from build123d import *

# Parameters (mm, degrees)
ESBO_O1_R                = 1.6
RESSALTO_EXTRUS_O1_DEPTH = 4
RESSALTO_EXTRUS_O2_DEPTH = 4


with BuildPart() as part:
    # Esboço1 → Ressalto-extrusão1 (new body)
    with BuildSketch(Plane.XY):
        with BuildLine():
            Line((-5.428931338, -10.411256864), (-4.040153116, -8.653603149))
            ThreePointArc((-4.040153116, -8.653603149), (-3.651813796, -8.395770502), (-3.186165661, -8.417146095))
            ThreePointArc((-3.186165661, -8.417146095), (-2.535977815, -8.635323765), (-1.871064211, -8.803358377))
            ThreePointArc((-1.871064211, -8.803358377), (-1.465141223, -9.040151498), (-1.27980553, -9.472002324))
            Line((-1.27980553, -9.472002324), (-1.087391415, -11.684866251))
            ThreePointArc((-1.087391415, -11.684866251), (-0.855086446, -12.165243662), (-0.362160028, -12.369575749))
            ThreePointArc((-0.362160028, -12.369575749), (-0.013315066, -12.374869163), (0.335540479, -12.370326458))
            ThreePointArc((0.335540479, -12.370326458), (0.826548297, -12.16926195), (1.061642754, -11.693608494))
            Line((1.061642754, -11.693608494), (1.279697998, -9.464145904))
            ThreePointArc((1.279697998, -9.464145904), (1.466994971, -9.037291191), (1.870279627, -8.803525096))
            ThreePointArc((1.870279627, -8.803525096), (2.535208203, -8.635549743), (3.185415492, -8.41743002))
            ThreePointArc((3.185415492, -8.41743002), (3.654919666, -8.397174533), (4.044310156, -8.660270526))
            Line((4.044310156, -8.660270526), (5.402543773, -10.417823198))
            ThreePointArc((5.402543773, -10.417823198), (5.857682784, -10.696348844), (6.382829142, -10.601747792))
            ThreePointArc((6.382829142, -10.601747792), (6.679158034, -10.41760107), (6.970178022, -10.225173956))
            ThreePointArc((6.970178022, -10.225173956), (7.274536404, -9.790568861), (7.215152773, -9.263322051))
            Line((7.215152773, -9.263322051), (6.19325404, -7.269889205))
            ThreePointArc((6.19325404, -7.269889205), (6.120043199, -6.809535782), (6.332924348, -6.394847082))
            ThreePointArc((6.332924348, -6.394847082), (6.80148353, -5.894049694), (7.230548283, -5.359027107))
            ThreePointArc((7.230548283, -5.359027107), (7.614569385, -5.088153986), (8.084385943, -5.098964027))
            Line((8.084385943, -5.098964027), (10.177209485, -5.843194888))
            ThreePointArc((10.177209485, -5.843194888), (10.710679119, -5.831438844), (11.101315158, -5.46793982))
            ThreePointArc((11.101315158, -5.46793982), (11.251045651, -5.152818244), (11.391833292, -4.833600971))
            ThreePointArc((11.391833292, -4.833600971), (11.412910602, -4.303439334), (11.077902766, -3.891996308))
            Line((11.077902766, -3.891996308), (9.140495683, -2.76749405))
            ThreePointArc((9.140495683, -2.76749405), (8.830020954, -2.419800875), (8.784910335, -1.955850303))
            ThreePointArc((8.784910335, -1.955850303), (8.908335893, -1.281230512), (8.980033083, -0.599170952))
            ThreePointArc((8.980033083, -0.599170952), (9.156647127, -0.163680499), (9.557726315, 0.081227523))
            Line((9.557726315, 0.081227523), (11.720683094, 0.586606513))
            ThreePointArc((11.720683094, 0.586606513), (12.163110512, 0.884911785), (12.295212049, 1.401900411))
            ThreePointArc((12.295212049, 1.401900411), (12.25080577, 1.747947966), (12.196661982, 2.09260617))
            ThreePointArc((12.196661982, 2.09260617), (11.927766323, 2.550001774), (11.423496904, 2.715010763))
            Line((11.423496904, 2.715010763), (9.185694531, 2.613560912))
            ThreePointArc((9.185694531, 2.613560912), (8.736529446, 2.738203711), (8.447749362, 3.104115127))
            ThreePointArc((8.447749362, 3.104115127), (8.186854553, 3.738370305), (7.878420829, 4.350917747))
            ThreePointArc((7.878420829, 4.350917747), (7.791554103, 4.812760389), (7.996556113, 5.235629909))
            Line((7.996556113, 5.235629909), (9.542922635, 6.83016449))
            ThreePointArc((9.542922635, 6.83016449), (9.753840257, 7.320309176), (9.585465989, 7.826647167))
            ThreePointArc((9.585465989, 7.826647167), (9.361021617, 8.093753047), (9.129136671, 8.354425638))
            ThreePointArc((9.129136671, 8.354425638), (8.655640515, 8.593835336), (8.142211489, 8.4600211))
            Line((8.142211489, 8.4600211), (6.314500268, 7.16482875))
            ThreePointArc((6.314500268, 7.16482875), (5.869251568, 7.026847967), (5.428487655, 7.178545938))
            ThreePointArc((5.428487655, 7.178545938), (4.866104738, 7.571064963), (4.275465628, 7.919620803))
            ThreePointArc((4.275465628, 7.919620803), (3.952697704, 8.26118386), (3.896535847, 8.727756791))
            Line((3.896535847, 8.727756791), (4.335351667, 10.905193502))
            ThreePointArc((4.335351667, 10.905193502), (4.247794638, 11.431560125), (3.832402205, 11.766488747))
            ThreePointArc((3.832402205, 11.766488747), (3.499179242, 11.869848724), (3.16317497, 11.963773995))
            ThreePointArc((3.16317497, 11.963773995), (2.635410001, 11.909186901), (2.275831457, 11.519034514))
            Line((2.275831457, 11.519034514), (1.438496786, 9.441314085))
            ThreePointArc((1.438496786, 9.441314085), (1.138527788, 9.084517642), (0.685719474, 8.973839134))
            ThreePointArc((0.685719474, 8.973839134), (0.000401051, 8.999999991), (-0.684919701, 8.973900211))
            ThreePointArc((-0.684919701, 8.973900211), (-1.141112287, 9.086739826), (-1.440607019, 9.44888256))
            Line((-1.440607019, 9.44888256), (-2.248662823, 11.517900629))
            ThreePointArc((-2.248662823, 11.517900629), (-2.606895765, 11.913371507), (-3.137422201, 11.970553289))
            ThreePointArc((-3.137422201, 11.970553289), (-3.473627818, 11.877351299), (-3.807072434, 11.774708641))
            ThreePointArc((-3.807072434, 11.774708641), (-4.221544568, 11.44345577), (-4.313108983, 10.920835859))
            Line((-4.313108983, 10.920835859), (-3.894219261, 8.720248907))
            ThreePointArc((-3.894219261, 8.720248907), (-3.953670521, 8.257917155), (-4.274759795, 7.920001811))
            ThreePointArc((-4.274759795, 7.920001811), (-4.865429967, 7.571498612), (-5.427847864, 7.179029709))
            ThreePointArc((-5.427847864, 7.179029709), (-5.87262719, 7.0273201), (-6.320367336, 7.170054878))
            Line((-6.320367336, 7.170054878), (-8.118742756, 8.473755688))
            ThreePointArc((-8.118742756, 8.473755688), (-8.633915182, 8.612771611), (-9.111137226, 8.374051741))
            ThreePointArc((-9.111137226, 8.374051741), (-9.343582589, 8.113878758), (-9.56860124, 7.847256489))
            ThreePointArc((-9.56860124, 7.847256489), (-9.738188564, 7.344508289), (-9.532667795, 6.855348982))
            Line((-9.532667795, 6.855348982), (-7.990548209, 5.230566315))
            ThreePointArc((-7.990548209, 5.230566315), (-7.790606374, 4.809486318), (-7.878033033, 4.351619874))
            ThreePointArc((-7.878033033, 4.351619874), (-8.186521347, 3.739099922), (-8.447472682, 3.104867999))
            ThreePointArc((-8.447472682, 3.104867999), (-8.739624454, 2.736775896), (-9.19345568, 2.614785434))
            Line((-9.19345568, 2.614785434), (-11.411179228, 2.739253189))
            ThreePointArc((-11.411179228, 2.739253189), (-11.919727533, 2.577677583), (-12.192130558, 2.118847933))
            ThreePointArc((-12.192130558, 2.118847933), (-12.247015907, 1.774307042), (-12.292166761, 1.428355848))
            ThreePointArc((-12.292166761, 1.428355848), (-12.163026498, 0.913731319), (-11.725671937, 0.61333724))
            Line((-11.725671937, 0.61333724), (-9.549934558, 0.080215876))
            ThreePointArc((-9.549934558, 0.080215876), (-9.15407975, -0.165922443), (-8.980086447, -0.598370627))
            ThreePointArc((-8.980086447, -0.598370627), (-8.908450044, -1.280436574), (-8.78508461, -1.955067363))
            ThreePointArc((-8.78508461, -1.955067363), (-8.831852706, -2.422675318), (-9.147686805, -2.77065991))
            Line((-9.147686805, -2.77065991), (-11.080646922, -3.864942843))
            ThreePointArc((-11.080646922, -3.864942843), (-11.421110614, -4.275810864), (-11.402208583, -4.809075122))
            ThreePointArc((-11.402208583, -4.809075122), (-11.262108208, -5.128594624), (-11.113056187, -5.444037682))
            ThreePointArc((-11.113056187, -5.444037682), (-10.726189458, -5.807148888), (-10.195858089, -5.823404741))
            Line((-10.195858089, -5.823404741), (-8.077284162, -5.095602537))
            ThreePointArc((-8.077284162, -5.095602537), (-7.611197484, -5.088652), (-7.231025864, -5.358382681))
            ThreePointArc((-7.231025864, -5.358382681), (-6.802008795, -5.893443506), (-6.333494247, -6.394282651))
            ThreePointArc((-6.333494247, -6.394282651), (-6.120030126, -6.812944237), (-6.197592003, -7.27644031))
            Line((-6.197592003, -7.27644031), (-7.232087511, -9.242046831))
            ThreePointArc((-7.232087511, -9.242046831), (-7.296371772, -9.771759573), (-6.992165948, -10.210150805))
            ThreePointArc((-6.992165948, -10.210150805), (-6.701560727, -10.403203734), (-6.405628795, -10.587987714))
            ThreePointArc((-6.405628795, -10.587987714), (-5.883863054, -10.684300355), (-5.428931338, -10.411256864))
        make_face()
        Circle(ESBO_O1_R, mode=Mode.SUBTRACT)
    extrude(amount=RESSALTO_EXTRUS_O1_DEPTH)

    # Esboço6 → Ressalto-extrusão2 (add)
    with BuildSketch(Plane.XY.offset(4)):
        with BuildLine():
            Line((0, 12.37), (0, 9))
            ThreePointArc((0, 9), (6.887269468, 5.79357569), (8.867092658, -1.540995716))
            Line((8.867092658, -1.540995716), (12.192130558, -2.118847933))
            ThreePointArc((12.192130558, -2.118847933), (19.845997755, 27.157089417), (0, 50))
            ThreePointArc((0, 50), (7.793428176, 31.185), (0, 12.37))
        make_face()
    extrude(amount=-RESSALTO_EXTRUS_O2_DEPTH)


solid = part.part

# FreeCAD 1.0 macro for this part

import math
import FreeCAD as App
import Part
import Sketcher

V = App.Vector

doc = App.newDocument("Part")
body = doc.addObject("PartDesign::Body", "Body")

# Sketch on XY plane
sketch1 = doc.addObject("Sketcher::SketchObject", "Sketch")
body.addObject(sketch1)
sketch1.AttachmentSupport = (doc.XY_Plane, [""])
sketch1.MapMode = "FlatFace"
sketch1.addGeometry([
    Part.LineSegment(V(-5.4, -10.4, 0), V(-4, -8.7, 0)),  # 0
    Part.ArcOfCircle(Part.Circle(V(-3.5, -9.1, 0), V(0, 0, 1), 0.7), math.radians(69), math.radians(142)),  # 1
    Part.ArcOfCircle(Part.Circle(V(0, 0, 0), V(0, 0, 1), 9), math.radians(-110.73), math.radians(-102)),  # 2
    Part.ArcOfCircle(Part.Circle(V(-2, -9.5, 0), V(0, 0, 1), 0.8), math.radians(5), math.radians(78)),  # 3
    Part.LineSegment(V(-1.3, -9.5, 0), V(-1.1, -11.7, 0)),  # 4
    Part.ArcOfCircle(Part.Circle(V(-0.3, -11.6, 0), V(0, 0, 1), 0.8), math.radians(-175), math.radians(-92)),  # 5
    Part.ArcOfCircle(Part.Circle(V(0, 0, 0), V(0, 0, 1), 12.4), math.radians(-91.68), math.radians(-88.45)),  # 6
    Part.ArcOfCircle(Part.Circle(V(0.3, -11.6, 0), V(0, 0, 1), 0.8), math.radians(-88), math.radians(-6)),  # 7
    Part.LineSegment(V(1.1, -11.7, 0), V(1.3, -9.5, 0)),  # 8
    Part.ArcOfCircle(Part.Circle(V(2, -9.5, 0), V(0, 0, 1), 0.8), math.radians(102), math.radians(174)),  # 9
    Part.ArcOfCircle(Part.Circle(V(0, 0, 0), V(0, 0, 1), 9), math.radians(-78.01), math.radians(-69.27)),  # 10
    Part.ArcOfCircle(Part.Circle(V(3.5, -9.1, 0), V(0, 0, 1), 0.7), math.radians(38), math.radians(111)),  # 11
    Part.LineSegment(V(4, -8.7, 0), V(5.4, -10.4, 0)),  # 12
    Part.ArcOfCircle(Part.Circle(V(6, -10, 0), V(0, 0, 1), 0.7), math.radians(-142), math.radians(-59)),  # 13
    Part.ArcOfCircle(Part.Circle(V(0, 0, 0), V(0, 0, 1), 12.4), math.radians(-58.95), math.radians(-55.72)),  # 14
    Part.ArcOfCircle(Part.Circle(V(6.5, -9.6, 0), V(0, 0, 1), 0.8), math.radians(-56), math.radians(27)),  # 15
    Part.LineSegment(V(7.2, -9.3, 0), V(6.2, -7.3, 0)),  # 16
    Part.ArcOfCircle(Part.Circle(V(6.9, -6.9, 0), V(0, 0, 1), 0.8), math.radians(135), math.radians(207)),  # 17
    Part.ArcOfCircle(Part.Circle(V(0, 0, 0), V(0, 0, 1), 9), math.radians(-45.28), math.radians(-36.54)),  # 18
    Part.ArcOfCircle(Part.Circle(V(7.8, -5.8, 0), V(0, 0, 1), 0.7), math.radians(70), math.radians(143)),  # 19
    Part.LineSegment(V(8.1, -5.1, 0), V(10.2, -5.8, 0)),  # 20
    Part.ArcOfCircle(Part.Circle(V(10.4, -5.1, 0), V(0, 0, 1), 0.8), math.radians(-110), math.radians(-26)),  # 21
    Part.ArcOfCircle(Part.Circle(V(0, 0, 0), V(0, 0, 1), 12.4), math.radians(-26.22), math.radians(-22.99)),  # 22
    Part.ArcOfCircle(Part.Circle(V(10.7, -4.5, 0), V(0, 0, 1), 0.7), math.radians(-23), math.radians(60)),  # 23
    Part.LineSegment(V(11.1, -3.9, 0), V(9.1, -2.8, 0)),  # 24
    Part.ArcOfCircle(Part.Circle(V(9.5, -2.1, 0), V(0, 0, 1), 0.8), math.radians(167), math.radians(240)),  # 25
    Part.ArcOfCircle(Part.Circle(V(0, 0, 0), V(0, 0, 1), 9), math.radians(-12.55), math.radians(-3.82)),  # 26
    Part.ArcOfCircle(Part.Circle(V(9.7, -0.6, 0), V(0, 0, 1), 0.7), math.radians(103), math.radians(176)),  # 27
    Part.LineSegment(V(9.6, 0.1, 0), V(11.7, 0.6, 0)),  # 28
    Part.ArcOfCircle(Part.Circle(V(11.6, 1.3, 0), V(0, 0, 1), 0.7), math.radians(-77), math.radians(7)),  # 29
    Part.ArcOfCircle(Part.Circle(V(0, 0, 0), V(0, 0, 1), 12.4), math.radians(6.5), math.radians(9.74)),  # 30
    Part.ArcOfCircle(Part.Circle(V(11.5, 2, 0), V(0, 0, 1), 0.7), math.radians(10), math.radians(93)),  # 31
    Part.LineSegment(V(11.4, 2.7, 0), V(9.2, 2.6, 0)),  # 32
    Part.ArcOfCircle(Part.Circle(V(9.2, 3.4, 0), V(0, 0, 1), 0.7), math.radians(-160), math.radians(-87)),  # 33
    Part.ArcOfCircle(Part.Circle(V(0, 0, 0), V(0, 0, 1), 9), math.radians(20.18), math.radians(28.91)),  # 34
    Part.ArcOfCircle(Part.Circle(V(8.5, 4.7, 0), V(0, 0, 1), 0.8), math.radians(136), math.radians(209)),  # 35
    Part.LineSegment(V(8, 5.2, 0), V(9.5, 6.8, 0)),  # 36
    Part.ArcOfCircle(Part.Circle(V(9, 7.4, 0), V(0, 0, 1), 0.8), math.radians(-44), math.radians(39)),  # 37
    Part.ArcOfCircle(Part.Circle(V(0, 0, 0), V(0, 0, 1), 12.4), math.radians(39.23), math.radians(42.46)),  # 38
    Part.ArcOfCircle(Part.Circle(V(8.6, 7.8, 0), V(0, 0, 1), 0.8), math.radians(42), math.radians(125)),  # 39
    Part.LineSegment(V(8.1, 8.5, 0), V(6.3, 7.2, 0)),  # 40
    Part.ArcOfCircle(Part.Circle(V(5.9, 7.8, 0), V(0, 0, 1), 0.8), math.radians(-127), math.radians(-55)),  # 41
    Part.ArcOfCircle(Part.Circle(V(0, 0, 0), V(0, 0, 1), 9), math.radians(52.9), math.radians(61.64)),  # 42
    Part.ArcOfCircle(Part.Circle(V(4.6, 8.6, 0), V(0, 0, 1), 0.7), math.radians(169), math.radians(242)),  # 43
    Part.LineSegment(V(3.9, 8.7, 0), V(4.3, 10.9, 0)),  # 44
    Part.ArcOfCircle(Part.Circle(V(3.6, 11.1, 0), V(0, 0, 1), 0.8), math.radians(-11), math.radians(72)),  # 45
    Part.ArcOfCircle(Part.Circle(V(0, 0, 0), V(0, 0, 1), 12.4), math.radians(71.96), math.radians(75.19)),  # 46
    Part.ArcOfCircle(Part.Circle(V(3, 11.2, 0), V(0, 0, 1), 0.8), math.radians(75), math.radians(158)),  # 47
    Part.LineSegment(V(2.3, 11.5, 0), V(1.4, 9.4, 0)),  # 48
    Part.ArcOfCircle(Part.Circle(V(0.7, 9.7, 0), V(0, 0, 1), 0.7), math.radians(-94), math.radians(-22)),  # 49
    Part.ArcOfCircle(Part.Circle(V(0, 0, 0), V(0, 0, 1), 9), math.radians(85.63), math.radians(94.36)),  # 50
    Part.ArcOfCircle(Part.Circle(V(-0.7, 9.7, 0), V(0, 0, 1), 0.8), math.radians(-159), math.radians(-86)),  # 51
    Part.LineSegment(V(-1.4, 9.4, 0), V(-2.2, 11.5, 0)),  # 52
    Part.ArcOfCircle(Part.Circle(V(-2.9, 11.2, 0), V(0, 0, 1), 0.8), math.radians(21), math.radians(105)),  # 53
    Part.ArcOfCircle(Part.Circle(V(0, 0, 0), V(0, 0, 1), 12.4), math.radians(104.69), math.radians(107.92)),  # 54
    Part.ArcOfCircle(Part.Circle(V(-3.6, 11.1, 0), V(0, 0, 1), 0.8), math.radians(108), math.radians(191)),  # 55
    Part.LineSegment(V(-4.3, 10.9, 0), V(-3.9, 8.7, 0)),  # 56
    Part.ArcOfCircle(Part.Circle(V(-4.6, 8.6, 0), V(0, 0, 1), 0.8), math.radians(-62), math.radians(11)),  # 57
    Part.ArcOfCircle(Part.Circle(V(0, 0, 0), V(0, 0, 1), 9), math.radians(118.36), math.radians(127.09)),  # 58
    Part.ArcOfCircle(Part.Circle(V(-5.9, 7.8, 0), V(0, 0, 1), 0.8), math.radians(-126), math.radians(-53)),  # 59
    Part.LineSegment(V(-6.3, 7.2, 0), V(-8.1, 8.5, 0)),  # 60
    Part.ArcOfCircle(Part.Circle(V(-8.6, 7.9, 0), V(0, 0, 1), 0.8), math.radians(54), math.radians(137)),  # 61
    Part.ArcOfCircle(Part.Circle(V(0, 0, 0), V(0, 0, 1), 12.4), math.radians(137.41), math.radians(140.64)),  # 62
    Part.ArcOfCircle(Part.Circle(V(-9, 7.4, 0), V(0, 0, 1), 0.7), math.radians(141), math.radians(224)),  # 63
    Part.LineSegment(V(-9.5, 6.9, 0), V(-8, 5.2, 0)),  # 64
    Part.ArcOfCircle(Part.Circle(V(-8.5, 4.7, 0), V(0, 0, 1), 0.7), math.radians(-29), math.radians(44)),  # 65
    Part.ArcOfCircle(Part.Circle(V(0, 0, 0), V(0, 0, 1), 9), math.radians(151.08), math.radians(159.82)),  # 66
    Part.ArcOfCircle(Part.Circle(V(-9.2, 3.4, 0), V(0, 0, 1), 0.7), math.radians(-93), math.radians(-20)),  # 67
    Part.LineSegment(V(-9.2, 2.6, 0), V(-11.4, 2.7, 0)),  # 68
    Part.ArcOfCircle(Part.Circle(V(-11.5, 2, 0), V(0, 0, 1), 0.8), math.radians(87), math.radians(170)),  # 69
    Part.ArcOfCircle(Part.Circle(V(0, 0, 0), V(0, 0, 1), 12.4), math.radians(170.14), math.radians(173.37)),  # 70
    Part.ArcOfCircle(Part.Circle(V(-11.5, 1.3, 0), V(0, 0, 1), 0.8), math.radians(173), math.radians(256)),  # 71
    Part.LineSegment(V(-11.7, 0.6, 0), V(-9.5, 0.1, 0)),  # 72
    Part.ArcOfCircle(Part.Circle(V(-9.7, -0.6, 0), V(0, 0, 1), 0.8), math.radians(4), math.radians(76)),  # 73
    Part.ArcOfCircle(Part.Circle(V(0, 0, 0), V(0, 0, 1), 9), math.radians(-176.19), math.radians(-167.45)),  # 74
    Part.ArcOfCircle(Part.Circle(V(-9.5, -2.1, 0), V(0, 0, 1), 0.8), math.radians(-60), math.radians(13)),  # 75
    Part.LineSegment(V(-9.1, -2.8, 0), V(-11.1, -3.9, 0)),  # 76
    Part.ArcOfCircle(Part.Circle(V(-10.7, -4.5, 0), V(0, 0, 1), 0.7), math.radians(120), math.radians(203)),  # 77
    Part.ArcOfCircle(Part.Circle(V(0, 0, 0), V(0, 0, 1), 12.4), math.radians(-157.13), math.radians(-153.9)),  # 78
    Part.ArcOfCircle(Part.Circle(V(-10.4, -5.1, 0), V(0, 0, 1), 0.8), math.radians(-154), math.radians(-71)),  # 79
    Part.LineSegment(V(-10.2, -5.8, 0), V(-8.1, -5.1, 0)),  # 80
    Part.ArcOfCircle(Part.Circle(V(-7.8, -5.8, 0), V(0, 0, 1), 0.8), math.radians(37), math.radians(109)),  # 81
    Part.ArcOfCircle(Part.Circle(V(0, 0, 0), V(0, 0, 1), 9), math.radians(-143.46), math.radians(-134.73)),  # 82
    Part.ArcOfCircle(Part.Circle(V(-6.9, -6.9, 0), V(0, 0, 1), 0.8), math.radians(-28), math.radians(45)),  # 83
    Part.LineSegment(V(-6.2, -7.3, 0), V(-7.2, -9.2, 0)),  # 84
    Part.ArcOfCircle(Part.Circle(V(-6.6, -9.6, 0), V(0, 0, 1), 0.8), math.radians(152), math.radians(236)),  # 85
    Part.ArcOfCircle(Part.Circle(V(0, 0, 0), V(0, 0, 1), 12.4), math.radians(-124.4), math.radians(-121.17)),  # 86
    Part.ArcOfCircle(Part.Circle(V(-6, -9.9, 0), V(0, 0, 1), 0.8), math.radians(-121), math.radians(-38)),  # 87
    Part.Circle(V(0, 0, 0), V(0, 0, 1), 1.6),  # 88
], False)
sketch1.addConstraint([
    Sketcher.Constraint("Tangent", 0, 2, 1, 2),
    Sketcher.Constraint("Tangent", 1, 1, 2, 1),
    Sketcher.Constraint("Tangent", 2, 2, 3, 2),
    Sketcher.Constraint("Tangent", 3, 1, 4, 1),
    Sketcher.Constraint("Tangent", 4, 2, 5, 1),
    Sketcher.Constraint("Tangent", 5, 2, 6, 1),
    Sketcher.Constraint("Tangent", 6, 2, 7, 1),
    Sketcher.Constraint("Tangent", 7, 2, 8, 1),
    Sketcher.Constraint("Tangent", 8, 2, 9, 2),
    Sketcher.Constraint("Tangent", 9, 1, 10, 1),
    Sketcher.Constraint("Tangent", 10, 2, 11, 2),
    Sketcher.Constraint("Tangent", 11, 1, 12, 1),
    Sketcher.Constraint("Tangent", 12, 2, 13, 1),
    Sketcher.Constraint("Tangent", 13, 2, 14, 1),
    Sketcher.Constraint("Tangent", 14, 2, 15, 1),
    Sketcher.Constraint("Tangent", 15, 2, 16, 1),
    Sketcher.Constraint("Tangent", 16, 2, 17, 2),
    Sketcher.Constraint("Tangent", 17, 1, 18, 1),
    Sketcher.Constraint("Tangent", 18, 2, 19, 2),
    Sketcher.Constraint("Tangent", 19, 1, 20, 1),
    Sketcher.Constraint("Tangent", 20, 2, 21, 1),
    Sketcher.Constraint("Tangent", 21, 2, 22, 1),
    Sketcher.Constraint("Tangent", 22, 2, 23, 1),
    Sketcher.Constraint("Tangent", 23, 2, 24, 1),
    Sketcher.Constraint("Tangent", 24, 2, 25, 2),
    Sketcher.Constraint("Tangent", 25, 1, 26, 1),
    Sketcher.Constraint("Tangent", 26, 2, 27, 2),
    Sketcher.Constraint("Tangent", 27, 1, 28, 1),
    Sketcher.Constraint("Tangent", 28, 2, 29, 1),
    Sketcher.Constraint("Tangent", 29, 2, 30, 1),
    Sketcher.Constraint("Tangent", 30, 2, 31, 1),
    Sketcher.Constraint("Tangent", 31, 2, 32, 1),
    Sketcher.Constraint("Tangent", 32, 2, 33, 2),
    Sketcher.Constraint("Tangent", 33, 1, 34, 1),
    Sketcher.Constraint("Tangent", 34, 2, 35, 2),
    Sketcher.Constraint("Tangent", 35, 1, 36, 1),
    Sketcher.Constraint("Tangent", 36, 2, 37, 1),
    Sketcher.Constraint("Tangent", 37, 2, 38, 1),
    Sketcher.Constraint("Tangent", 38, 2, 39, 1),
    Sketcher.Constraint("Tangent", 39, 2, 40, 1),
    Sketcher.Constraint("Tangent", 40, 2, 41, 2),
    Sketcher.Constraint("Tangent", 41, 1, 42, 1),
    Sketcher.Constraint("Tangent", 42, 2, 43, 2),
    Sketcher.Constraint("Tangent", 43, 1, 44, 1),
    Sketcher.Constraint("Tangent", 44, 2, 45, 1),
    Sketcher.Constraint("Tangent", 45, 2, 46, 1),
    Sketcher.Constraint("Tangent", 46, 2, 47, 1),
    Sketcher.Constraint("Tangent", 47, 2, 48, 1),
    Sketcher.Constraint("Tangent", 48, 2, 49, 2),
    Sketcher.Constraint("Tangent", 49, 1, 50, 1),
    Sketcher.Constraint("Tangent", 50, 2, 51, 2),
    Sketcher.Constraint("Tangent", 51, 1, 52, 1),
    Sketcher.Constraint("Tangent", 52, 2, 53, 1),
    Sketcher.Constraint("Tangent", 53, 2, 54, 1),
    Sketcher.Constraint("Tangent", 54, 2, 55, 1),
    Sketcher.Constraint("Tangent", 55, 2, 56, 1),
    Sketcher.Constraint("Tangent", 56, 2, 57, 2),
    Sketcher.Constraint("Tangent", 57, 1, 58, 1),
    Sketcher.Constraint("Tangent", 58, 2, 59, 2),
    Sketcher.Constraint("Tangent", 59, 1, 60, 1),
    Sketcher.Constraint("Tangent", 60, 2, 61, 1),
    Sketcher.Constraint("Tangent", 61, 2, 62, 1),
    Sketcher.Constraint("Tangent", 62, 2, 63, 1),
    Sketcher.Constraint("Tangent", 63, 2, 64, 1),
    Sketcher.Constraint("Tangent", 64, 2, 65, 2),
    Sketcher.Constraint("Tangent", 65, 1, 66, 1),
    Sketcher.Constraint("Tangent", 66, 2, 67, 2),
    Sketcher.Constraint("Tangent", 67, 1, 68, 1),
    Sketcher.Constraint("Tangent", 68, 2, 69, 1),
    Sketcher.Constraint("Tangent", 69, 2, 70, 1),
    Sketcher.Constraint("Tangent", 70, 2, 71, 1),
    Sketcher.Constraint("Tangent", 71, 2, 72, 1),
    Sketcher.Constraint("Tangent", 72, 2, 73, 2),
    Sketcher.Constraint("Tangent", 73, 1, 74, 1),
    Sketcher.Constraint("Tangent", 74, 2, 75, 2),
    Sketcher.Constraint("Tangent", 75, 1, 76, 1),
    Sketcher.Constraint("Tangent", 76, 2, 77, 1),
    Sketcher.Constraint("Tangent", 77, 2, 78, 1),
    Sketcher.Constraint("Tangent", 78, 2, 79, 1),
    Sketcher.Constraint("Tangent", 79, 2, 80, 1),
    Sketcher.Constraint("Tangent", 80, 2, 81, 2),
    Sketcher.Constraint("Tangent", 81, 1, 82, 1),
    Sketcher.Constraint("Tangent", 82, 2, 83, 2),
    Sketcher.Constraint("Tangent", 83, 1, 84, 1),
    Sketcher.Constraint("Tangent", 84, 2, 85, 1),
    Sketcher.Constraint("Tangent", 85, 2, 86, 1),
    Sketcher.Constraint("Tangent", 86, 2, 87, 1),
    Sketcher.Constraint("Tangent", 87, 2, 0, 1),
    Sketcher.Constraint("Coincident", 2, 3, -1, 1),
    Sketcher.Constraint("Coincident", 6, 3, -1, 1),
    Sketcher.Constraint("Coincident", 10, 3, -1, 1),
    Sketcher.Constraint("Coincident", 14, 3, -1, 1),
    Sketcher.Constraint("Coincident", 18, 3, -1, 1),
    Sketcher.Constraint("Coincident", 22, 3, -1, 1),
    Sketcher.Constraint("Coincident", 26, 3, -1, 1),
    Sketcher.Constraint("Coincident", 30, 3, -1, 1),
    Sketcher.Constraint("Coincident", 34, 3, -1, 1),
    Sketcher.Constraint("Coincident", 38, 3, -1, 1),
    Sketcher.Constraint("Coincident", 42, 3, -1, 1),
    Sketcher.Constraint("Coincident", 46, 3, -1, 1),
    Sketcher.Constraint("Coincident", 50, 3, -1, 1),
    Sketcher.Constraint("Coincident", 54, 3, -1, 1),
    Sketcher.Constraint("Coincident", 58, 3, -1, 1),
    Sketcher.Constraint("Coincident", 62, 3, -1, 1),
    Sketcher.Constraint("Coincident", 66, 3, -1, 1),
    Sketcher.Constraint("Coincident", 70, 3, -1, 1),
    Sketcher.Constraint("Coincident", 74, 3, -1, 1),
    Sketcher.Constraint("Coincident", 78, 3, -1, 1),
    Sketcher.Constraint("Coincident", 82, 3, -1, 1),
    Sketcher.Constraint("Coincident", 86, 3, -1, 1),
    Sketcher.Constraint("Coincident", 88, 3, -1, 1),
    Sketcher.Constraint("Equal", 1, 3),
    Sketcher.Constraint("Equal", 3, 5),
    Sketcher.Constraint("Equal", 5, 7),
    Sketcher.Constraint("Equal", 7, 9),
    Sketcher.Constraint("Equal", 2, 10),
    Sketcher.Constraint("Equal", 9, 11),
    Sketcher.Constraint("Equal", 11, 13),
    Sketcher.Constraint("Equal", 6, 14),
    Sketcher.Constraint("Equal", 13, 15),
    Sketcher.Constraint("Equal", 15, 17),
    Sketcher.Constraint("Equal", 10, 18),
    Sketcher.Constraint("Equal", 17, 19),
    Sketcher.Constraint("Equal", 19, 21),
    Sketcher.Constraint("Equal", 14, 22),
    Sketcher.Constraint("Equal", 21, 23),
    Sketcher.Constraint("Equal", 23, 25),
    Sketcher.Constraint("Equal", 18, 26),
    Sketcher.Constraint("Equal", 25, 27),
    Sketcher.Constraint("Equal", 27, 29),
    Sketcher.Constraint("Equal", 14, 30),
    Sketcher.Constraint("Equal", 29, 31),
    Sketcher.Constraint("Equal", 31, 33),
    Sketcher.Constraint("Equal", 26, 34),
    Sketcher.Constraint("Equal", 33, 35),
    Sketcher.Constraint("Equal", 35, 37),
    Sketcher.Constraint("Equal", 30, 38),
    Sketcher.Constraint("Equal", 37, 39),
    Sketcher.Constraint("Equal", 39, 41),
    Sketcher.Constraint("Equal", 34, 42),
    Sketcher.Constraint("Equal", 41, 43),
    Sketcher.Constraint("Equal", 43, 45),
    Sketcher.Constraint("Equal", 38, 46),
    Sketcher.Constraint("Equal", 45, 47),
    Sketcher.Constraint("Equal", 47, 49),
    Sketcher.Constraint("Equal", 42, 50),
    Sketcher.Constraint("Equal", 49, 51),
    Sketcher.Constraint("Equal", 51, 53),
    Sketcher.Constraint("Equal", 46, 54),
    Sketcher.Constraint("Equal", 53, 55),
    Sketcher.Constraint("Equal", 55, 57),
    Sketcher.Constraint("Equal", 50, 58),
    Sketcher.Constraint("Equal", 57, 59),
    Sketcher.Constraint("Equal", 59, 61),
    Sketcher.Constraint("Equal", 54, 62),
    Sketcher.Constraint("Equal", 61, 63),
    Sketcher.Constraint("Equal", 63, 65),
    Sketcher.Constraint("Equal", 58, 66),
    Sketcher.Constraint("Equal", 65, 67),
    Sketcher.Constraint("Equal", 67, 69),
    Sketcher.Constraint("Equal", 62, 70),
    Sketcher.Constraint("Equal", 69, 71),
    Sketcher.Constraint("Equal", 71, 73),
    Sketcher.Constraint("Equal", 66, 74),
    Sketcher.Constraint("Equal", 73, 75),
    Sketcher.Constraint("Equal", 75, 77),
    Sketcher.Constraint("Equal", 70, 78),
    Sketcher.Constraint("Equal", 77, 79),
    Sketcher.Constraint("Equal", 79, 81),
    Sketcher.Constraint("Equal", 74, 82),
    Sketcher.Constraint("Equal", 81, 83),
    Sketcher.Constraint("Equal", 83, 85),
    Sketcher.Constraint("Equal", 78, 86),
    Sketcher.Constraint("Equal", 85, 87),
    Sketcher.Constraint("Equal", 0, 8),
    Sketcher.Constraint("Equal", 4, 12),
    Sketcher.Constraint("Equal", 8, 16),
    Sketcher.Constraint("Equal", 12, 20),
    Sketcher.Constraint("Equal", 16, 24),
    Sketcher.Constraint("Equal", 20, 28),
    Sketcher.Constraint("Equal", 24, 32),
    Sketcher.Constraint("Equal", 28, 36),
    Sketcher.Constraint("Equal", 32, 40),
    Sketcher.Constraint("Equal", 36, 44),
    Sketcher.Constraint("Equal", 40, 48),
    Sketcher.Constraint("Equal", 44, 52),
    Sketcher.Constraint("Equal", 48, 56),
    Sketcher.Constraint("Equal", 52, 60),
    Sketcher.Constraint("Equal", 56, 64),
    Sketcher.Constraint("Equal", 60, 68),
    Sketcher.Constraint("Equal", 64, 72),
    Sketcher.Constraint("Equal", 68, 76),
    Sketcher.Constraint("Equal", 72, 80),
    Sketcher.Constraint("Equal", 76, 84),
    Sketcher.Constraint("Radius", 2, 9.0),
    Sketcher.Constraint("Diameter", 88, 3.2),
    Sketcher.Constraint("Radius", 1, 0.75),
    Sketcher.Constraint("DistanceY", -1, 1, 57, 3, 8.580002),
    Sketcher.Constraint("Radius", 6, 12.374876),
    Sketcher.Constraint("Distance", 0, 2.240101),
    Sketcher.Constraint("DistanceX", -1, 1, 21, 3, 10.428501),
    Sketcher.Constraint("DistanceY", 27, 3, -1, 1, 0.649102),
    Sketcher.Constraint("DistanceY", -1, 1, 37, 3, 7.3523),
    Sketcher.Constraint("DistanceY", 22, 2, -1, 1, 4.833601),
    Sketcher.Constraint("DistanceY", -1, 1, 29, 2, 1.4019),
    Sketcher.Constraint("DistanceX", -1, 1, 40, 2, 6.3145),
    Sketcher.Constraint("DistanceY", -1, 1, 50, 2, 8.9739),
    Sketcher.Constraint("DistanceX", 62, 2, -1, 1, 9.568601),
    Sketcher.Constraint("DistanceX", 1, 3, -1, 1, 3.451679),
    Sketcher.Constraint("DistanceY", 3, 3, -1, 1, 9.536972),
    Sketcher.Constraint("DistanceY", 13, 3, -1, 1, 9.959211),
    Sketcher.Constraint("DistanceX", -1, 1, 15, 3, 6.547739),
    Sketcher.Constraint("DistanceY", -1, 1, 31, 3, 1.96578),
    Sketcher.Constraint("DistanceY", -1, 1, 43, 3, 8.579589),
    Sketcher.Constraint("DistanceY", -1, 1, 47, 3, 11.23869),
    Sketcher.Constraint("DistanceX", 59, 3, -1, 1, 5.880169),
    Sketcher.Constraint("DistanceX", 67, 3, -1, 1, 9.151429),
    Sketcher.Constraint("DistanceX", 71, 3, -1, 1, 11.54718),
    Sketcher.Constraint("DistanceY", 75, 3, -1, 1, 2.11799),
    Sketcher.Constraint("DistanceX", 79, 3, -1, 1, 10.439531),
    Sketcher.Constraint("DistanceY", 83, 3, -1, 1, 6.92714),
    Sketcher.Constraint("DistanceX", -1, 1, 6, 2, 0.33554),
])
pad1 = doc.addObject("PartDesign::Pad", "Pad")
body.addObject(pad1)
pad1.Profile = sketch1
pad1.Length = 4

# Sketch on XY plane
sketch2 = doc.addObject("Sketcher::SketchObject", "Sketch001")
body.addObject(sketch2)
sketch2.AttachmentSupport = (doc.XY_Plane, [""])
sketch2.MapMode = "FlatFace"
sketch2.AttachmentOffset = App.Placement(V(0, 0, 4), App.Rotation())
sketch2.addGeometry([
    Part.LineSegment(V(0, 12.4, 0), V(0, 9, 0)),  # 0
    Part.ArcOfCircle(Part.Circle(V(0, 0, 0), V(0, 0, 1), 9), math.radians(-10), math.radians(90)),  # 1
    Part.LineSegment(V(8.9, -1.5, 0), V(12.2, -2.1, 0)),  # 2
    Part.ArcOfCircle(Part.Circle(V(-11.7, 19.8, 0), V(0, 0, 1), 32.4), math.radians(-42), math.radians(69)),  # 3
    Part.ArcOfCircle(Part.Circle(V(-18.8, 31.2, 0), V(0, 0, 1), 26.6), math.radians(-45), math.radians(45)),  # 4
], False)
sketch2.addConstraint([
    Sketcher.Constraint("Coincident", 0, 2, 1, 2),
    Sketcher.Constraint("Coincident", 1, 1, 2, 1),
    Sketcher.Constraint("Coincident", 2, 2, 3, 1),
    Sketcher.Constraint("Coincident", 3, 2, 4, 2),
    Sketcher.Constraint("Coincident", 4, 1, 0, 1),
    Sketcher.Constraint("Vertical", 0),
    Sketcher.Constraint("Coincident", 1, 3, -1, 1),
    Sketcher.Constraint("PointOnObject", 0, 2, -2),
    Sketcher.Constraint("PointOnObject", 3, 2, -2),
    Sketcher.Constraint("Radius", 1, 9.0),
    Sketcher.Constraint("DistanceY", -1, 1, 3, 2, 50.0),
    Sketcher.Constraint("DistanceY", 0, 2, 0, 1, 3.37),
    Sketcher.Constraint("Radius", 3, 32.42168),
    Sketcher.Constraint("Radius", 4, 26.608428),
    Sketcher.Constraint("DistanceX", 3, 3, -1, 1, 11.723402),
    Sketcher.Constraint("DistanceX", -1, 1, 2, 2, 12.192131),
    Sketcher.Constraint("DistanceX", -1, 1, 1, 1, 8.867093),
])
pad2 = doc.addObject("PartDesign::Pad", "Pad001")
body.addObject(pad2)
pad2.Profile = sketch2
pad2.Length = 4
pad2.Reversed = True

doc.recompute()
